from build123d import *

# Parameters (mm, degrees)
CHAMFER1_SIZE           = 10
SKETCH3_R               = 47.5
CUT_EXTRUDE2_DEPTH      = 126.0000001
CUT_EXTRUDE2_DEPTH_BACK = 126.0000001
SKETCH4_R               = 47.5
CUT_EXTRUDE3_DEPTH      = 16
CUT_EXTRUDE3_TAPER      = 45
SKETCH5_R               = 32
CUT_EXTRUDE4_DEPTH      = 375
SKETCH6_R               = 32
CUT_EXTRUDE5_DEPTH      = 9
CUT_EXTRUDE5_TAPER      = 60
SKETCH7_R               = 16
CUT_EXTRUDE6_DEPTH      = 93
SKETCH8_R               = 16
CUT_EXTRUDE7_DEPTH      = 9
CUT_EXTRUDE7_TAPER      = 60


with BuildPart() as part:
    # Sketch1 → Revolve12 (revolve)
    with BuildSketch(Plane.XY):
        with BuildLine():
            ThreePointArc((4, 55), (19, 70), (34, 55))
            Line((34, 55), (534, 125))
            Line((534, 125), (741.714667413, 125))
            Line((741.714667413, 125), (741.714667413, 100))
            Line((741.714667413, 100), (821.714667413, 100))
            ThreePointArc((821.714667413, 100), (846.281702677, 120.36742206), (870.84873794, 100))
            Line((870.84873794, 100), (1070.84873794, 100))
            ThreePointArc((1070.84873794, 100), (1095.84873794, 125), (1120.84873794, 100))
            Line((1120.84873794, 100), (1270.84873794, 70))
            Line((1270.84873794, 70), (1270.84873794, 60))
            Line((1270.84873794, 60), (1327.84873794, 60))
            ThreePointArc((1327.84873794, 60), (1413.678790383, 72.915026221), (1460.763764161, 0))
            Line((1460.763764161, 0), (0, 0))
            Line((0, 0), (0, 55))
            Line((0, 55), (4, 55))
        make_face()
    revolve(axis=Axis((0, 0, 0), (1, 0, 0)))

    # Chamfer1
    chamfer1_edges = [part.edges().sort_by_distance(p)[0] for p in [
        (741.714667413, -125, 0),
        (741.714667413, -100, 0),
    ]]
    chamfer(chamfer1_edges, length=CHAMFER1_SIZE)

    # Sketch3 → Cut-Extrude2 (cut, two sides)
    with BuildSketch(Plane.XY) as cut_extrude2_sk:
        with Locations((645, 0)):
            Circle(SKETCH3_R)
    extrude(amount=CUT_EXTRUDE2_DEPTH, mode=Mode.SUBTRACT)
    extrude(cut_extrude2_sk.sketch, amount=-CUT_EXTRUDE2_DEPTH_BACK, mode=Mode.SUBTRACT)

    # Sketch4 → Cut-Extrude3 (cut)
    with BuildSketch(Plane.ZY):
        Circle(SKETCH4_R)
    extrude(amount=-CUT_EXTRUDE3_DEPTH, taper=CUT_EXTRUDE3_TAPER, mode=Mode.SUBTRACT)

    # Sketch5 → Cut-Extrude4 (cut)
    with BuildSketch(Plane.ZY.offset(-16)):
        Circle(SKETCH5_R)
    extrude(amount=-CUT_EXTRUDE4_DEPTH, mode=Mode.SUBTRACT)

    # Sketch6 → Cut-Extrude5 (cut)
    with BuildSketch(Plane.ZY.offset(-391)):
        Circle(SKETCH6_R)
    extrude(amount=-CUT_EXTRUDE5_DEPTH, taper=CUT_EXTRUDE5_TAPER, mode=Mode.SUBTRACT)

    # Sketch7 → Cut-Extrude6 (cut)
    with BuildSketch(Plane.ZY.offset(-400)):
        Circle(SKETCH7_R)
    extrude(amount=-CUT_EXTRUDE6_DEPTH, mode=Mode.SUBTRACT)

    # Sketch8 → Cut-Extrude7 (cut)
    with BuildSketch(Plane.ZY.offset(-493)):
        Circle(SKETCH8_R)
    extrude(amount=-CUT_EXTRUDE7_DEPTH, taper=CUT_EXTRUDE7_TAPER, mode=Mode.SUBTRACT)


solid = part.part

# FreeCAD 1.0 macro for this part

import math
import FreeCAD as App
import Part
import Sketcher

V = App.Vector
Q = App.Units.Quantity


def edges_at(feature, points):
    """Names of the edges that pass closest to the given points."""
    edges = feature.Shape.Edges
    near = lambda p: min(range(len(edges)), key=lambda i: edges[i].distToShape(Part.Vertex(*p))[0])
    return sorted({f"Edge{near(p) + 1}" for p in points})

doc = App.newDocument("Part")
body = doc.addObject("PartDesign::Body", "Body")

# Sketch on XY plane
sketch1 = body.newObject("Sketcher::SketchObject", "Sketch")
sketch1.AttachmentSupport = (doc.getObject("XY_Plane"), [""])
sketch1.MapMode = "FlatFace"
sketch1.addGeometry(Part.ArcOfCircle(Part.Circle(V(19, 55, 0), V(0, 0, 1), 15), math.radians(0), math.radians(180)), False)
sketch1.addGeometry(Part.LineSegment(V(4, 55, 0), V(0, 55, 0)), False)
sketch1.addGeometry(Part.LineSegment(V(0, 55, 0), V(0, 0, 0)), False)
sketch1.addGeometry(Part.LineSegment(V(0, 0, 0), V(1460.763764, 0, 0)), False)
sketch1.addGeometry(Part.ArcOfCircle(Part.Circle(V(1380.763764, 0, 0), V(0, 0, 1), 80), math.radians(0), math.radians(131.409622)), False)
sketch1.addGeometry(Part.LineSegment(V(1327.848738, 60, 0), V(1270.848738, 60, 0)), False)
sketch1.addGeometry(Part.LineSegment(V(1270.848738, 60, 0), V(1270.848738, 70, 0)), False)
sketch1.addGeometry(Part.LineSegment(V(1270.848738, 70, 0), V(1120.848738, 100, 0)), False)
sketch1.addGeometry(Part.ArcOfCircle(Part.Circle(V(1095.848738, 100, 0), V(0, 0, 1), 25), math.radians(0), math.radians(180)), False)
sketch1.addGeometry(Part.LineSegment(V(1070.848738, 100, 0), V(870.848738, 100, 0)), False)
sketch1.addGeometry(Part.ArcOfCircle(Part.Circle(V(846.281703, 95.367422, 0), V(0, 0, 1), 25), math.radians(10.678805), math.radians(169.321195)), False)
sketch1.addGeometry(Part.LineSegment(V(821.714667, 100, 0), V(741.714667, 100, 0)), False)
sketch1.addGeometry(Part.LineSegment(V(741.714667, 100, 0), V(741.714667, 125, 0)), False)
sketch1.addGeometry(Part.LineSegment(V(741.714667, 125, 0), V(534, 125, 0)), False)
sketch1.addGeometry(Part.LineSegment(V(534, 125, 0), V(34, 55, 0)), False)
sketch1.addConstraint(Sketcher.Constraint("Coincident", 0, 2, 1, 1))
sketch1.addConstraint(Sketcher.Constraint("Coincident", 1, 2, 2, 1))
sketch1.addConstraint(Sketcher.Constraint("Coincident", 2, 2, 3, 1))
sketch1.addConstraint(Sketcher.Constraint("Coincident", 3, 2, 4, 1))
sketch1.addConstraint(Sketcher.Constraint("Coincident", 4, 2, 5, 1))
sketch1.addConstraint(Sketcher.Constraint("Coincident", 5, 2, 6, 1))
sketch1.addConstraint(Sketcher.Constraint("Coincident", 6, 2, 7, 1))
sketch1.addConstraint(Sketcher.Constraint("Coincident", 7, 2, 8, 1))
sketch1.addConstraint(Sketcher.Constraint("Coincident", 8, 2, 9, 1))
sketch1.addConstraint(Sketcher.Constraint("Coincident", 9, 2, 10, 1))
sketch1.addConstraint(Sketcher.Constraint("Coincident", 10, 2, 11, 1))
sketch1.addConstraint(Sketcher.Constraint("Coincident", 11, 2, 12, 1))
sketch1.addConstraint(Sketcher.Constraint("Coincident", 12, 2, 13, 1))
sketch1.addConstraint(Sketcher.Constraint("Coincident", 13, 2, 14, 1))
sketch1.addConstraint(Sketcher.Constraint("Coincident", 14, 2, 0, 1))
sketch1.addConstraint(Sketcher.Constraint("Horizontal", 1))
sketch1.addConstraint(Sketcher.Constraint("Vertical", 2))
sketch1.addConstraint(Sketcher.Constraint("Horizontal", 3))
sketch1.addConstraint(Sketcher.Constraint("Horizontal", 5))
sketch1.addConstraint(Sketcher.Constraint("Vertical", 6))
sketch1.addConstraint(Sketcher.Constraint("Horizontal", 9))
sketch1.addConstraint(Sketcher.Constraint("Horizontal", 11))
sketch1.addConstraint(Sketcher.Constraint("Vertical", 12))
sketch1.addConstraint(Sketcher.Constraint("Horizontal", 13))
sketch1.addConstraint(Sketcher.Constraint("Coincident", 2, 2, -1, 1))
sketch1.addConstraint(Sketcher.Constraint("Equal", 8, 10))
sketch1.addConstraint(Sketcher.Constraint("PointOnObject", 4, 3, -1))
sketch1.addConstraint(Sketcher.Constraint("Horizontal", 8, 3, 7, 2))
sketch1.addConstraint(Sketcher.Constraint("Horizontal", 7, 2, 8, 2))
sketch1.addConstraint(Sketcher.Constraint("Horizontal", 9, 2, 10, 2))
sketch1.addConstraint(Sketcher.Constraint("Horizontal", 1, 2, 14, 2))
sketch1.addConstraint(Sketcher.Constraint("Radius", 0, Q("15 mm")))
sketch1.addConstraint(Sketcher.Constraint("Radius", 4, Q("80 mm")))
sketch1.addConstraint(Sketcher.Constraint("Radius", 8, Q("25 mm")))
sketch1.addConstraint(Sketcher.Constraint("DistanceX", 1, 2, 1, 1, Q("4 mm")))
sketch1.addConstraint(Sketcher.Constraint("DistanceX", 5, 2, 5, 1, Q("57 mm")))
sketch1.addConstraint(Sketcher.Constraint("DistanceX", 9, 2, 9, 1, Q("200 mm")))
sketch1.addConstraint(Sketcher.Constraint("DistanceX", 11, 2, 11, 1, Q("80 mm")))
sketch1.addConstraint(Sketcher.Constraint("DistanceY", 2, 2, 2, 1, Q("55 mm")))
sketch1.addConstraint(Sketcher.Constraint("DistanceY", 6, 1, 6, 2, Q("10 mm")))
sketch1.addConstraint(Sketcher.Constraint("DistanceY", 12, 1, 12, 2, Q("25 mm")))
sketch1.addConstraint(Sketcher.Constraint("DistanceY", -1, 1, 0, 3, Q("55 mm")))
sketch1.addConstraint(Sketcher.Constraint("DistanceY", -1, 1, 8, 3, Q("100 mm")))
sketch1.addConstraint(Sketcher.Constraint("DistanceY", -1, 1, 4, 2, Q("60 mm")))
sketch1.addConstraint(Sketcher.Constraint("DistanceX", -1, 1, 13, 2, Q("534 mm")))
sketch1.addConstraint(Sketcher.Constraint("DistanceX", 8, 3, 4, 2, Q("232 mm")))
sketch1.addConstraint(Sketcher.Constraint("DistanceX", 3, 1, 3, 2, Q("1460.763764 mm")))
sketch1.addConstraint(Sketcher.Constraint("DistanceX", 13, 2, 13, 1, Q("207.714667 mm")))
revolution = body.newObject("PartDesign::Revolution", "Revolution")
revolution.Profile = sketch1
revolution.ReferenceAxis = (sketch1, ["H_Axis"])
revolution.Angle = 360
doc.recompute()

chamfer = body.newObject("PartDesign::Chamfer", "Chamfer")
chamfer.Base = (revolution, edges_at(revolution, [(741.715, -125, 0), (741.715, -100, 0)]))
chamfer.Size = 10

# Sketch on XY plane
sketch2 = body.newObject("Sketcher::SketchObject", "Sketch001")
sketch2.AttachmentSupport = (doc.getObject("XY_Plane"), [""])
sketch2.MapMode = "FlatFace"
sketch2.addGeometry(Part.Circle(V(645, 0, 0), V(0, 0, 1), 47.5), False)
sketch2.addConstraint(Sketcher.Constraint("PointOnObject", 0, 3, -1))
sketch2.addConstraint(Sketcher.Constraint("Diameter", 0, Q("95 mm")))
sketch2.addConstraint(Sketcher.Constraint("DistanceX", -1, 1, 0, 3, Q("645 mm")))
pocket1 = body.newObject("PartDesign::Pocket", "Pocket")
pocket1.Profile = sketch2
pocket1.Type = "ThroughAll"
pocket1.Midplane = True

# Sketch on YZ plane
sketch3 = body.newObject("Sketcher::SketchObject", "Sketch002")
sketch3.AttachmentSupport = (doc.getObject("YZ_Plane"), [""])
sketch3.MapMode = "FlatFace"
sketch3.addGeometry(Part.Circle(V(0, 0, 0), V(0, 0, 1), 47.5), False)
sketch3.addConstraint(Sketcher.Constraint("Coincident", 0, 3, -1, 1))
sketch3.addConstraint(Sketcher.Constraint("Diameter", 0, Q("95 mm")))
pocket2 = body.newObject("PartDesign::Pocket", "Pocket001")
pocket2.Profile = sketch3
pocket2.Length = 16
pocket2.Reversed = True
pocket2.TaperAngle = -45

# Sketch on YZ plane
sketch4 = body.newObject("Sketcher::SketchObject", "Sketch003")
sketch4.AttachmentSupport = (doc.getObject("YZ_Plane"), [""])
sketch4.MapMode = "FlatFace"
sketch4.AttachmentOffset = App.Placement(V(0, 0, 16), App.Rotation())
sketch4.addGeometry(Part.Circle(V(0, 0, 0), V(0, 0, 1), 32), False)
sketch4.addConstraint(Sketcher.Constraint("Coincident", 0, 3, -1, 1))
sketch4.addConstraint(Sketcher.Constraint("Diameter", 0, Q("64 mm")))
pocket3 = body.newObject("PartDesign::Pocket", "Pocket002")
pocket3.Profile = sketch4
pocket3.Length = 375
pocket3.Reversed = True

# Sketch on YZ plane
sketch5 = body.newObject("Sketcher::SketchObject", "Sketch004")
sketch5.AttachmentSupport = (doc.getObject("YZ_Plane"), [""])
sketch5.MapMode = "FlatFace"
sketch5.AttachmentOffset = App.Placement(V(0, 0, 391), App.Rotation())
sketch5.addGeometry(Part.Circle(V(0, 0, 0), V(0, 0, 1), 32), False)
sketch5.addConstraint(Sketcher.Constraint("Coincident", 0, 3, -1, 1))
sketch5.addConstraint(Sketcher.Constraint("Diameter", 0, Q("64 mm")))
pocket4 = body.newObject("PartDesign::Pocket", "Pocket003")
pocket4.Profile = sketch5
pocket4.Length = 9
pocket4.Reversed = True
pocket4.TaperAngle = -60

# Sketch on YZ plane
sketch6 = body.newObject("Sketcher::SketchObject", "Sketch005")
sketch6.AttachmentSupport = (doc.getObject("YZ_Plane"), [""])
sketch6.MapMode = "FlatFace"
sketch6.AttachmentOffset = App.Placement(V(0, 0, 400), App.Rotation())
sketch6.addGeometry(Part.Circle(V(0, 0, 0), V(0, 0, 1), 16), False)
sketch6.addConstraint(Sketcher.Constraint("Coincident", 0, 3, -1, 1))
sketch6.addConstraint(Sketcher.Constraint("Diameter", 0, Q("32 mm")))
pocket5 = body.newObject("PartDesign::Pocket", "Pocket004")
pocket5.Profile = sketch6
pocket5.Length = 93
pocket5.Reversed = True

# Sketch on YZ plane
sketch7 = body.newObject("Sketcher::SketchObject", "Sketch006")
sketch7.AttachmentSupport = (doc.getObject("YZ_Plane"), [""])
sketch7.MapMode = "FlatFace"
sketch7.AttachmentOffset = App.Placement(V(0, 0, 493), App.Rotation())
sketch7.addGeometry(Part.Circle(V(0, 0, 0), V(0, 0, 1), 16), False)
sketch7.addConstraint(Sketcher.Constraint("Coincident", 0, 3, -1, 1))
sketch7.addConstraint(Sketcher.Constraint("Diameter", 0, Q("32 mm")))
pocket6 = body.newObject("PartDesign::Pocket", "Pocket005")
pocket6.Profile = sketch7
pocket6.Length = 9
pocket6.Reversed = True
pocket6.TaperAngle = -60

doc.recompute()
